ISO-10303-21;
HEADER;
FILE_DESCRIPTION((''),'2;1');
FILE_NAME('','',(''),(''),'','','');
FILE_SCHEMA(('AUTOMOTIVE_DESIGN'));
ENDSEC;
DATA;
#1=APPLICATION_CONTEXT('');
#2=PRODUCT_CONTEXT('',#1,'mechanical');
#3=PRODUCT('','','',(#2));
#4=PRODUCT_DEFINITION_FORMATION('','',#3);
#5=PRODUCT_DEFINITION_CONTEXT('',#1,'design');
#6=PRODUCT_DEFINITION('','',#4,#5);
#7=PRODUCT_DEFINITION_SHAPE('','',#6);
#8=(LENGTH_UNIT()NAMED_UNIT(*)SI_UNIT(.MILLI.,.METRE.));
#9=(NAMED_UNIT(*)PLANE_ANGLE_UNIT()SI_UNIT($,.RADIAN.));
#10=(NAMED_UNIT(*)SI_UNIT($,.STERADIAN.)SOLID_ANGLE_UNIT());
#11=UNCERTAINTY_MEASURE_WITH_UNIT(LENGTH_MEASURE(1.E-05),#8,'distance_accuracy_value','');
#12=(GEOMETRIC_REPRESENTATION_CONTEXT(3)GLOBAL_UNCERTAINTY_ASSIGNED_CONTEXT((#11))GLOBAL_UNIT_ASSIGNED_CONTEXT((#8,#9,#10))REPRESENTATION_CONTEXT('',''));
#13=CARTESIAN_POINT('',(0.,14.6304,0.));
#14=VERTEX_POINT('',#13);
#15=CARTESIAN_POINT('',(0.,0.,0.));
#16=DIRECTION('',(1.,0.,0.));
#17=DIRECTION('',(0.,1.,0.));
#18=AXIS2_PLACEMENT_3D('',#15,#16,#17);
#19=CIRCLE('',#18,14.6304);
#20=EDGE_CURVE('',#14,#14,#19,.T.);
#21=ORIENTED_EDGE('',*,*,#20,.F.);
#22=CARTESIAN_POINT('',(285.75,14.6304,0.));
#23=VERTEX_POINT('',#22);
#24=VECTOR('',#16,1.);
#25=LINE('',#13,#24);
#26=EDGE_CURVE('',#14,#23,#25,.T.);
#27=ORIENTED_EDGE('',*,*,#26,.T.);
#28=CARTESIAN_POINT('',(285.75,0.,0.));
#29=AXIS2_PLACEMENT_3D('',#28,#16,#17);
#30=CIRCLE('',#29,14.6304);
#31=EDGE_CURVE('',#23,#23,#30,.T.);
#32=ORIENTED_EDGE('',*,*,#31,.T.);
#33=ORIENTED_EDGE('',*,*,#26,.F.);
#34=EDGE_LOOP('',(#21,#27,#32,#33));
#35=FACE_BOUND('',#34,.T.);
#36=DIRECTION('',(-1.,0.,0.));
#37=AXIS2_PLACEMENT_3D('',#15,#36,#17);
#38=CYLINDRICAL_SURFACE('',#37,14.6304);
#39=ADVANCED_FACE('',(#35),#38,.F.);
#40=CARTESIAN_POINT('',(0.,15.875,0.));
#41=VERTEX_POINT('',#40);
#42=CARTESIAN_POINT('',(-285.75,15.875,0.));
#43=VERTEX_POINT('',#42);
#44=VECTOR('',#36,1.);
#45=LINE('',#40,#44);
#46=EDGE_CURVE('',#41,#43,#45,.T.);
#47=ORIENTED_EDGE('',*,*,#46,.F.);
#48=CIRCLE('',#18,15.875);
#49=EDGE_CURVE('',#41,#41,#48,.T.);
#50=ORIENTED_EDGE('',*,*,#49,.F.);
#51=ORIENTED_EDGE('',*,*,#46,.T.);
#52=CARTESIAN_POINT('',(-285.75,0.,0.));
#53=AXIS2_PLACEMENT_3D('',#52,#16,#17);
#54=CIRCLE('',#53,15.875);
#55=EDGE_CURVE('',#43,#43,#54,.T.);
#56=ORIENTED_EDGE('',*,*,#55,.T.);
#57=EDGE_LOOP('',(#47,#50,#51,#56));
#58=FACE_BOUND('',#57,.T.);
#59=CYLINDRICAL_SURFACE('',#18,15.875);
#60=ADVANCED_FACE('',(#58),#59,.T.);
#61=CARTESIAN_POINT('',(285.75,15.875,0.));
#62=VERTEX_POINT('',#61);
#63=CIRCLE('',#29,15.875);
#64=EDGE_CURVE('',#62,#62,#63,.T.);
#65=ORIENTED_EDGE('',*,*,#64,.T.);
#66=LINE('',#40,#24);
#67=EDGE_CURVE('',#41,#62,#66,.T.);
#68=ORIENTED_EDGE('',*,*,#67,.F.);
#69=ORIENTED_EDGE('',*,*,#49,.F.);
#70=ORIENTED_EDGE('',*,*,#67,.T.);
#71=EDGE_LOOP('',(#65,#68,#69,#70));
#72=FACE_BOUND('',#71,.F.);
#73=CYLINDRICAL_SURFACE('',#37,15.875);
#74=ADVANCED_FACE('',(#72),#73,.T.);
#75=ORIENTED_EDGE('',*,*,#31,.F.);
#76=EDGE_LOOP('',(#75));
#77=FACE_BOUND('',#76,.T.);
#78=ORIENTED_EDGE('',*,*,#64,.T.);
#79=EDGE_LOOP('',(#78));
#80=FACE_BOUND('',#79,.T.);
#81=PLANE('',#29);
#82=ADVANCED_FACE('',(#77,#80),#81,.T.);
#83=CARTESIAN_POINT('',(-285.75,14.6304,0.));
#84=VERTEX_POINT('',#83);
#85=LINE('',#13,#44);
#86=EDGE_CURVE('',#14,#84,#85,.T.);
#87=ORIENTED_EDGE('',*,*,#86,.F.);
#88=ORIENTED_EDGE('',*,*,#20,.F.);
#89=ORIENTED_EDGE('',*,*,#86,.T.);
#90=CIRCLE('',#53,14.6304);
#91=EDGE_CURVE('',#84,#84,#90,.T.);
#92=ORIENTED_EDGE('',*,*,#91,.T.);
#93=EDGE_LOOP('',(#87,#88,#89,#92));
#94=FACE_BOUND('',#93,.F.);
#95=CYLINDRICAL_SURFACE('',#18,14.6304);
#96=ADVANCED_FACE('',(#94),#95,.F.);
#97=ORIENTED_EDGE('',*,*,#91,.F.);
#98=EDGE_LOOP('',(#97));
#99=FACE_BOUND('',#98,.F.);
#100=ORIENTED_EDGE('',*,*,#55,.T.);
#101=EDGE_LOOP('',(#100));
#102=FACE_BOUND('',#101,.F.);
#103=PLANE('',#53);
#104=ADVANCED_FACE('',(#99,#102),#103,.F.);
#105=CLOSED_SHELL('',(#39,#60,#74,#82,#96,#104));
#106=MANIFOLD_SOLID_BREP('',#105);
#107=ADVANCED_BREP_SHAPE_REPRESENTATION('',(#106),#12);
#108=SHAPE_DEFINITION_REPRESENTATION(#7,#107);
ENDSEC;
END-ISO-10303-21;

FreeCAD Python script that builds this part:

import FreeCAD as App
import Part
import Sketcher
from FreeCAD import Vector
Q = App.Units.Quantity

doc = App.newDocument("Part")
body = doc.addObject("PartDesign::Body", "Body")

# Sketch on YZ plane
sketch1 = body.newObject("Sketcher::SketchObject", "Sketch")
sketch1.AttachmentSupport = (doc.getObject("YZ_Plane"), [""])
sketch1.MapMode = "FlatFace"
sketch1.addGeometry([
    Part.Circle(Vector(0, 0, 0), Vector(0, 0, 1), 16),
    Part.Circle(Vector(0, 0, 0), Vector(0, 0, 1), 15),
], False)
sketch1.addConstraint([
    Sketcher.Constraint("Coincident", 0, 3, -1, 1),
    Sketcher.Constraint("Coincident", 1, 3, -1, 1),
    Sketcher.Constraint("Diameter", 0, Q("1.25 in")),
    Sketcher.Constraint("Diameter", 1, Q("1.152 in")),
])
pad1 = body.newObject("PartDesign::Pad", "Pad")
pad1.Profile = sketch1
pad1.Length = Q("22.5 in")
pad1.Midplane = True

doc.recompute()
